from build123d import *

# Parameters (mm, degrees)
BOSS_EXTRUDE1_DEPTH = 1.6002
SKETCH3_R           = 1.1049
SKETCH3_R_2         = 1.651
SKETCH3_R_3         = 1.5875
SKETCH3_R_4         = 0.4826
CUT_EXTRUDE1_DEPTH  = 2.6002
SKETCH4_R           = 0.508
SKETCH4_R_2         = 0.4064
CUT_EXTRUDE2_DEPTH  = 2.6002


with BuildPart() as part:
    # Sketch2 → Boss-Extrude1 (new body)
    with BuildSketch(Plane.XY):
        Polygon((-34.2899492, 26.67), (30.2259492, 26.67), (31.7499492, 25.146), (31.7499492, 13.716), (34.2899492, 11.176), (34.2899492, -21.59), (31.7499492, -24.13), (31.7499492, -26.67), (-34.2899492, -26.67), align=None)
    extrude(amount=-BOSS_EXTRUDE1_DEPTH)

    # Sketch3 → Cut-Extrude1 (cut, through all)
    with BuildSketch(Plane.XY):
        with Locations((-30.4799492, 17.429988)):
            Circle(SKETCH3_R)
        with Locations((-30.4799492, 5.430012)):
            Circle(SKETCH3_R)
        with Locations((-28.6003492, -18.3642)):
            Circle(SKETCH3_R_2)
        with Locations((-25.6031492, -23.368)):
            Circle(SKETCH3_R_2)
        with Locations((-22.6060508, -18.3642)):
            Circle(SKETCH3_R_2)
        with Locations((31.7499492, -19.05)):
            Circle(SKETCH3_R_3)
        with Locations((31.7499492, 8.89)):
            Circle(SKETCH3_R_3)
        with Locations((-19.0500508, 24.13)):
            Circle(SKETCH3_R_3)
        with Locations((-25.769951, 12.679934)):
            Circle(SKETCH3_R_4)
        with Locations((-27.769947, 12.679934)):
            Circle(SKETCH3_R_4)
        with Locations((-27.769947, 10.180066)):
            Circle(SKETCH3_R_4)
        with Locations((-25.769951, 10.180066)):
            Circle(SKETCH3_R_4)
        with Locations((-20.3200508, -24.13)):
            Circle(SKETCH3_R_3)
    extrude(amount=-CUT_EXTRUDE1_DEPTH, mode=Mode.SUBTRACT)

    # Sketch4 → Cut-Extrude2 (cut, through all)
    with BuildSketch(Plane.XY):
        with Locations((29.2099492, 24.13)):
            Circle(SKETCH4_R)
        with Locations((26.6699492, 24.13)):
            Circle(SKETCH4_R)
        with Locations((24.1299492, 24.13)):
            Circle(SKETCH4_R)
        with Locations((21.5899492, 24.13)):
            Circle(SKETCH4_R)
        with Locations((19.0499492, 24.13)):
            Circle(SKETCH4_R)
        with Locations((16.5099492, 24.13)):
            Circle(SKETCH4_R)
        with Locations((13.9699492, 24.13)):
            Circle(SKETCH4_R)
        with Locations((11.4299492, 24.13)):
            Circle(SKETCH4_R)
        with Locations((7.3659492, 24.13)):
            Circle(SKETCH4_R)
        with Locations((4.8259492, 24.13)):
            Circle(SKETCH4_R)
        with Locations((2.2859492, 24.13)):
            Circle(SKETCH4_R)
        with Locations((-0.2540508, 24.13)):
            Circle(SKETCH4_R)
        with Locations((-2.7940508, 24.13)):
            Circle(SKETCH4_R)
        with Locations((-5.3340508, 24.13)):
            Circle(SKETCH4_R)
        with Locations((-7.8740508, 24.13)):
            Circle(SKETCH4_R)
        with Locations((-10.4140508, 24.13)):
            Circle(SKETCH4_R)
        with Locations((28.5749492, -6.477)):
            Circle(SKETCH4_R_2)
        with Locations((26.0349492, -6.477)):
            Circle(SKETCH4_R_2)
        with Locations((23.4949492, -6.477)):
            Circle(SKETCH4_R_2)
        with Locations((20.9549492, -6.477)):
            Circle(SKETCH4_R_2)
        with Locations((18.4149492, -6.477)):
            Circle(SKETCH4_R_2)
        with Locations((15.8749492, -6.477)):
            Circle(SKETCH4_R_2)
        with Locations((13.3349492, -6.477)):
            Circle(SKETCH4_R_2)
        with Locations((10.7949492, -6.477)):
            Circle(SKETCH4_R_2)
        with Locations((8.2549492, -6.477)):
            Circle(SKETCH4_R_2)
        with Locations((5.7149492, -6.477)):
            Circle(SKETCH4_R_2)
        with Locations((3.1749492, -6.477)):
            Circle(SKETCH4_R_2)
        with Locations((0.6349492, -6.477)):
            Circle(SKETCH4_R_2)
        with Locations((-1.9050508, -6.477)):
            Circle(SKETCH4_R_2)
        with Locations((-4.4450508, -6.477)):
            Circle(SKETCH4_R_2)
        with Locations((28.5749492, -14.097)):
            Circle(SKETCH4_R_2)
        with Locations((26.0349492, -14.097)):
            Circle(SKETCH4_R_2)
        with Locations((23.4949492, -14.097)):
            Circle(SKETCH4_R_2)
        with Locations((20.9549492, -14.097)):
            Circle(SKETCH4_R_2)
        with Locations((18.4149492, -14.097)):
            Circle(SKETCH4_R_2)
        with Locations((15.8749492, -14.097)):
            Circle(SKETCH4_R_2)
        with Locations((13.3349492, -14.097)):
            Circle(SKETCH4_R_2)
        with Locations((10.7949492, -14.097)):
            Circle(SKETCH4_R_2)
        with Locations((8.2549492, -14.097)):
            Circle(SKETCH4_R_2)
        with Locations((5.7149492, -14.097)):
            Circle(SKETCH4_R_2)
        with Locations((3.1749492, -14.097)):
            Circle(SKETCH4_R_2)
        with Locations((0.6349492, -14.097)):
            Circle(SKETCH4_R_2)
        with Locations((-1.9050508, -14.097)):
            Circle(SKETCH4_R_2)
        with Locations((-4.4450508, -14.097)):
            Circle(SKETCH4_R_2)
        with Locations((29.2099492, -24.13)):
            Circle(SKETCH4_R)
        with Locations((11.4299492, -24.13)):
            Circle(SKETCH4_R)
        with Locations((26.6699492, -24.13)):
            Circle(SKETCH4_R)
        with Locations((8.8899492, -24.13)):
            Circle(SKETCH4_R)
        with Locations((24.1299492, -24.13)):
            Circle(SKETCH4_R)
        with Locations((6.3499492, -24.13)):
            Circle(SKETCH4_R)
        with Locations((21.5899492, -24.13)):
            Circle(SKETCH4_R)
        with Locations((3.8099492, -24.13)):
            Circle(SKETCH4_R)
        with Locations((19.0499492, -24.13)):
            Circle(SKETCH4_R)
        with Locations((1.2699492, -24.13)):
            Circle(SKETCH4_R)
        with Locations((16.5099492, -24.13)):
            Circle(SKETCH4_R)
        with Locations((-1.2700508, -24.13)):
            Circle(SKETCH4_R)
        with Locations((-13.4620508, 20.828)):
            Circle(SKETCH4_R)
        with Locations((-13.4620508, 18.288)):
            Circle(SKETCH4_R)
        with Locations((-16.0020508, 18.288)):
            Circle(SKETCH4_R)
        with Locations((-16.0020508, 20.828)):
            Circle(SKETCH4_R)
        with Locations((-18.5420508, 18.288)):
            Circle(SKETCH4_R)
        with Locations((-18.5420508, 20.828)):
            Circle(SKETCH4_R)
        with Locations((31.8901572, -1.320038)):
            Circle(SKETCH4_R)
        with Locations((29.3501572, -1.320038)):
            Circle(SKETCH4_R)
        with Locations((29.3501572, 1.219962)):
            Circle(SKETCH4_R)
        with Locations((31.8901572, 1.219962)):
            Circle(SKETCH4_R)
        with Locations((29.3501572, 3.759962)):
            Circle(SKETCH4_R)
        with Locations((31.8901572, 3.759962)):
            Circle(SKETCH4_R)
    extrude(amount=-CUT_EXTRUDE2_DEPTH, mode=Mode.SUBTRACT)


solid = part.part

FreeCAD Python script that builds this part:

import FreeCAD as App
import Part
import Sketcher

V = App.Vector
Q = App.Units.Quantity


def add_polygon(sketch, points):
    """Adds a closed chain of lines whose ends are joined by coincident constraints."""
    first, n = sketch.GeometryCount, len(points)
    for a, b in zip(points, points[1:] + points[:1]):
        sketch.addGeometry(Part.LineSegment(App.Vector(*a, 0), App.Vector(*b, 0)), False)
    for i in range(n):
        sketch.addConstraint(Sketcher.Constraint("Coincident", first + i, 2, first + (i + 1) % n, 1))

doc = App.newDocument("Part")
body = doc.addObject("PartDesign::Body", "Body")

# Sketch on XY plane
sketch1 = body.newObject("Sketcher::SketchObject", "Sketch")
sketch1.AttachmentSupport = (doc.getObject("XY_Plane"), [""])
sketch1.MapMode = "FlatFace"
add_polygon(sketch1, [(30.2, 26.7), (-34.3, 26.7), (-34.3, -26.7), (31.7, -26.7), (31.7, -24.1), (34.3, -21.6), (34.3, 11.2), (31.7, 13.7), (31.7, 25.1)])  # lines 0-8
sketch1.addConstraint(Sketcher.Constraint("Horizontal", 0))
sketch1.addConstraint(Sketcher.Constraint("Vertical", 1))
sketch1.addConstraint(Sketcher.Constraint("Horizontal", 2))
sketch1.addConstraint(Sketcher.Constraint("Vertical", 3))
sketch1.addConstraint(Sketcher.Constraint("Vertical", 5))
sketch1.addConstraint(Sketcher.Constraint("Vertical", 7))
sketch1.addConstraint(Sketcher.Constraint("Perpendicular", 4, 6))
sketch1.addConstraint(Sketcher.Constraint("Parallel", 6, 8))
sketch1.addConstraint(Sketcher.Constraint("Vertical", 3, 2, 6, 2))
sketch1.addConstraint(Sketcher.Constraint("Equal", 4, 6))
sketch1.addConstraint(Sketcher.Constraint("DistanceY", 1, 2, 1, 1, Q("2.1 in")))
sketch1.addConstraint(Sketcher.Constraint("DistanceY", 3, 1, 3, 2, Q("0.1 in")))
sketch1.addConstraint(Sketcher.Constraint("DistanceY", 5, 1, 5, 2, Q("1.29 in")))
sketch1.addConstraint(Sketcher.Constraint("DistanceY", 7, 1, 7, 2, Q("0.45 in")))
sketch1.addConstraint(Sketcher.Constraint("DistanceX", 3, 2, 4, 2, Q("0.1 in")))
sketch1.addConstraint(Sketcher.Constraint("DistanceY", -1, 1, 0, 2, Q("1.05 in")))
sketch1.addConstraint(Sketcher.Constraint("DistanceX", 0, 2, 0, 1, Q("64.515898 mm")))
sketch1.addConstraint(Sketcher.Constraint("DistanceX", 0, 2, -1, 1, Q("34.289949 mm")))
pad1 = body.newObject("PartDesign::Pad", "Pad")
pad1.Profile = sketch1
pad1.Length = Q("0.063 in")
pad1.Reversed = True

# Sketch on XY plane
sketch2 = body.newObject("Sketcher::SketchObject", "Sketch001")
sketch2.AttachmentSupport = (doc.getObject("XY_Plane"), [""])
sketch2.MapMode = "FlatFace"
sketch2.addGeometry(Part.Circle(V(-30.48, 17.43, 0), V(0, 0, 1), 1.1), False)
sketch2.addGeometry(Part.Circle(V(-30.48, 5.43, 0), V(0, 0, 1), 1.1), False)
sketch2.addGeometry(Part.Circle(V(-28.6, -18.36, 0), V(0, 0, 1), 1.65), False)
sketch2.addGeometry(Part.Circle(V(-25.6, -23.37, 0), V(0, 0, 1), 1.65), False)
sketch2.addGeometry(Part.Circle(V(-22.61, -18.36, 0), V(0, 0, 1), 1.65), False)
sketch2.addGeometry(Part.Circle(V(31.75, -19.05, 0), V(0, 0, 1), 1.59), False)
sketch2.addGeometry(Part.Circle(V(31.75, 8.89, 0), V(0, 0, 1), 1.59), False)
sketch2.addGeometry(Part.Circle(V(-19.05, 24.13, 0), V(0, 0, 1), 1.59), False)
sketch2.addGeometry(Part.Circle(V(-25.77, 12.68, 0), V(0, 0, 1), 0.48), False)
sketch2.addGeometry(Part.Circle(V(-27.77, 12.68, 0), V(0, 0, 1), 0.48), False)
sketch2.addGeometry(Part.Circle(V(-27.77, 10.18, 0), V(0, 0, 1), 0.48), False)
sketch2.addGeometry(Part.Circle(V(-25.77, 10.18, 0), V(0, 0, 1), 0.48), False)
sketch2.addGeometry(Part.Circle(V(-20.32, -24.13, 0), V(0, 0, 1), 1.59), False)
sketch2.addConstraint(Sketcher.Constraint("Equal", 0, 1))
sketch2.addConstraint(Sketcher.Constraint("Equal", 2, 3))
sketch2.addConstraint(Sketcher.Constraint("Equal", 3, 4))
sketch2.addConstraint(Sketcher.Constraint("Equal", 5, 6))
sketch2.addConstraint(Sketcher.Constraint("Equal", 6, 7))
sketch2.addConstraint(Sketcher.Constraint("Equal", 8, 9))
sketch2.addConstraint(Sketcher.Constraint("Equal", 9, 10))
sketch2.addConstraint(Sketcher.Constraint("Equal", 10, 11))
sketch2.addConstraint(Sketcher.Constraint("Equal", 7, 12))
sketch2.addConstraint(Sketcher.Constraint("Horizontal", 2, 3, 4, 3))
sketch2.addConstraint(Sketcher.Constraint("Horizontal", 8, 3, 9, 3))
sketch2.addConstraint(Sketcher.Constraint("Horizontal", 10, 3, 11, 3))
sketch2.addConstraint(Sketcher.Constraint("Vertical", 0, 3, 1, 3))
sketch2.addConstraint(Sketcher.Constraint("Vertical", 5, 3, 6, 3))
sketch2.addConstraint(Sketcher.Constraint("Vertical", 9, 3, 10, 3))
sketch2.addConstraint(Sketcher.Constraint("Vertical", 8, 3, 11, 3))
sketch2.addConstraint(Sketcher.Constraint("Diameter", 2, Q("0.13 in")))
sketch2.addConstraint(Sketcher.Constraint("Diameter", 0, Q("0.087 in")))
sketch2.addConstraint(Sketcher.Constraint("Diameter", 5, Q("0.125 in")))
sketch2.addConstraint(Sketcher.Constraint("Diameter", 8, Q("0.038 in")))
sketch2.addConstraint(Sketcher.Constraint("DistanceY", 5, 3, 6, 3, Q("1.1 in")))
sketch2.addConstraint(Sketcher.Constraint("DistanceY", 3, 3, -1, 1, Q("0.92 in")))
sketch2.addConstraint(Sketcher.Constraint("DistanceY", 5, 3, -1, 1, Q("0.75 in")))
sketch2.addConstraint(Sketcher.Constraint("DistanceY", -1, 1, 7, 3, Q("0.95 in")))
sketch2.addConstraint(Sketcher.Constraint("DistanceY", 12, 3, -1, 1, Q("0.95 in")))
sketch2.addConstraint(Sketcher.Constraint("DistanceX", 4, 3, 5, 3, Q("2.14 in")))
sketch2.addConstraint(Sketcher.Constraint("DistanceX", 4, 3, 7, 3, Q("0.14 in")))
sketch2.addConstraint(Sketcher.Constraint("DistanceX", 4, 3, 12, 3, Q("0.09 in")))
sketch2.addConstraint(Sketcher.Constraint("DistanceY", 2, 3, -1, 1, Q("0.723 in")))
sketch2.addConstraint(Sketcher.Constraint("DistanceX", 1, 3, 2, 3, Q("0.074 in")))
sketch2.addConstraint(Sketcher.Constraint("DistanceX", 2, 3, 3, 3, Q("0.118 in")))
sketch2.addConstraint(Sketcher.Constraint("DistanceX", 3, 3, 4, 3, Q("2.997098 mm")))
sketch2.addConstraint(Sketcher.Constraint("DistanceX", 0, 3, 8, 3, Q("4.709998 mm")))
sketch2.addConstraint(Sketcher.Constraint("DistanceX", 0, 3, -1, 1, Q("30.479949 mm")))
sketch2.addConstraint(Sketcher.Constraint("DistanceY", -1, 1, 0, 3, Q("17.429988 mm")))
sketch2.addConstraint(Sketcher.Constraint("DistanceY", -1, 1, 1, 3, Q("5.430012 mm")))
sketch2.addConstraint(Sketcher.Constraint("DistanceY", 1, 3, 8, 3, Q("7.249922 mm")))
sketch2.addConstraint(Sketcher.Constraint("DistanceX", 9, 3, -1, 1, Q("27.769947 mm")))
sketch2.addConstraint(Sketcher.Constraint("DistanceY", -1, 1, 10, 3, Q("10.180066 mm")))
pocket1 = body.newObject("PartDesign::Pocket", "Pocket")
pocket1.Profile = sketch2
pocket1.Type = "ThroughAll"

# Sketch on XY plane
sketch3 = body.newObject("Sketcher::SketchObject", "Sketch002")
sketch3.AttachmentSupport = (doc.getObject("XY_Plane"), [""])
sketch3.MapMode = "FlatFace"
sketch3.addGeometry(Part.Circle(V(29.21, 24.13, 0), V(0, 0, 1), 0.51), False)
sketch3.addGeometry(Part.Circle(V(26.67, 24.13, 0), V(0, 0, 1), 0.51), False)
sketch3.addGeometry(Part.Circle(V(24.13, 24.13, 0), V(0, 0, 1), 0.51), False)
sketch3.addGeometry(Part.Circle(V(21.59, 24.13, 0), V(0, 0, 1), 0.51), False)
sketch3.addGeometry(Part.Circle(V(19.05, 24.13, 0), V(0, 0, 1), 0.51), False)
sketch3.addGeometry(Part.Circle(V(16.51, 24.13, 0), V(0, 0, 1), 0.51), False)
sketch3.addGeometry(Part.Circle(V(13.97, 24.13, 0), V(0, 0, 1), 0.51), False)
sketch3.addGeometry(Part.Circle(V(11.43, 24.13, 0), V(0, 0, 1), 0.51), False)
sketch3.addGeometry(Part.Circle(V(7.37, 24.13, 0), V(0, 0, 1), 0.51), False)
sketch3.addGeometry(Part.Circle(V(4.83, 24.13, 0), V(0, 0, 1), 0.51), False)
sketch3.addGeometry(Part.Circle(V(2.29, 24.13, 0), V(0, 0, 1), 0.51), False)
sketch3.addGeometry(Part.Circle(V(-0.25, 24.13, 0), V(0, 0, 1), 0.51), False)
sketch3.addGeometry(Part.Circle(V(-2.79, 24.13, 0), V(0, 0, 1), 0.51), False)
sketch3.addGeometry(Part.Circle(V(-5.33, 24.13, 0), V(0, 0, 1), 0.51), False)
sketch3.addGeometry(Part.Circle(V(-7.87, 24.13, 0), V(0, 0, 1), 0.51), False)
sketch3.addGeometry(Part.Circle(V(-10.41, 24.13, 0), V(0, 0, 1), 0.51), False)
sketch3.addGeometry(Part.Circle(V(28.57, -6.48, 0), V(0, 0, 1), 0.41), False)
sketch3.addGeometry(Part.Circle(V(26.03, -6.48, 0), V(0, 0, 1), 0.41), False)
sketch3.addGeometry(Part.Circle(V(23.49, -6.48, 0), V(0, 0, 1), 0.41), False)
sketch3.addGeometry(Part.Circle(V(20.95, -6.48, 0), V(0, 0, 1), 0.41), False)
sketch3.addGeometry(Part.Circle(V(18.41, -6.48, 0), V(0, 0, 1), 0.41), False)
sketch3.addGeometry(Part.Circle(V(15.87, -6.48, 0), V(0, 0, 1), 0.41), False)
sketch3.addGeometry(Part.Circle(V(13.33, -6.48, 0), V(0, 0, 1), 0.41), False)
sketch3.addGeometry(Part.Circle(V(10.79, -6.48, 0), V(0, 0, 1), 0.41), False)
sketch3.addGeometry(Part.Circle(V(8.25, -6.48, 0), V(0, 0, 1), 0.41), False)
sketch3.addGeometry(Part.Circle(V(5.71, -6.48, 0), V(0, 0, 1), 0.41), False)
sketch3.addGeometry(Part.Circle(V(3.17, -6.48, 0), V(0, 0, 1), 0.41), False)
sketch3.addGeometry(Part.Circle(V(0.63, -6.48, 0), V(0, 0, 1), 0.41), False)
sketch3.addGeometry(Part.Circle(V(-1.91, -6.48, 0), V(0, 0, 1), 0.41), False)
sketch3.addGeometry(Part.Circle(V(-4.45, -6.48, 0), V(0, 0, 1), 0.41), False)
sketch3.addGeometry(Part.Circle(V(28.57, -14.1, 0), V(0, 0, 1), 0.41), False)
sketch3.addGeometry(Part.Circle(V(26.03, -14.1, 0), V(0, 0, 1), 0.41), False)
sketch3.addGeometry(Part.Circle(V(23.49, -14.1, 0), V(0, 0, 1), 0.41), False)
sketch3.addGeometry(Part.Circle(V(20.95, -14.1, 0), V(0, 0, 1), 0.41), False)
sketch3.addGeometry(Part.Circle(V(18.41, -14.1, 0), V(0, 0, 1), 0.41), False)
sketch3.addGeometry(Part.Circle(V(15.87, -14.1, 0), V(0, 0, 1), 0.41), False)
sketch3.addGeometry(Part.Circle(V(13.33, -14.1, 0), V(0, 0, 1), 0.41), False)
sketch3.addGeometry(Part.Circle(V(10.79, -14.1, 0), V(0, 0, 1), 0.41), False)
sketch3.addGeometry(Part.Circle(V(8.25, -14.1, 0), V(0, 0, 1), 0.41), False)
sketch3.addGeometry(Part.Circle(V(5.71, -14.1, 0), V(0, 0, 1), 0.41), False)
sketch3.addGeometry(Part.Circle(V(3.17, -14.1, 0), V(0, 0, 1), 0.41), False)
sketch3.addGeometry(Part.Circle(V(0.63, -14.1, 0), V(0, 0, 1), 0.41), False)
sketch3.addGeometry(Part.Circle(V(-1.91, -14.1, 0), V(0, 0, 1), 0.41), False)
sketch3.addGeometry(Part.Circle(V(-4.45, -14.1, 0), V(0, 0, 1), 0.41), False)
sketch3.addGeometry(Part.Circle(V(29.21, -24.13, 0), V(0, 0, 1), 0.51), False)
sketch3.addGeometry(Part.Circle(V(11.43, -24.13, 0), V(0, 0, 1), 0.51), False)
sketch3.addGeometry(Part.Circle(V(26.67, -24.13, 0), V(0, 0, 1), 0.51), False)
sketch3.addGeometry(Part.Circle(V(8.89, -24.13, 0), V(0, 0, 1), 0.51), False)
sketch3.addGeometry(Part.Circle(V(24.13, -24.13, 0), V(0, 0, 1), 0.51), False)
sketch3.addGeometry(Part.Circle(V(6.35, -24.13, 0), V(0, 0, 1), 0.51), False)
sketch3.addGeometry(Part.Circle(V(21.59, -24.13, 0), V(0, 0, 1), 0.51), False)
sketch3.addGeometry(Part.Circle(V(3.81, -24.13, 0), V(0, 0, 1), 0.51), False)
sketch3.addGeometry(Part.Circle(V(19.05, -24.13, 0), V(0, 0, 1), 0.51), False)
sketch3.addGeometry(Part.Circle(V(1.27, -24.13, 0), V(0, 0, 1), 0.51), False)
sketch3.addGeometry(Part.Circle(V(16.51, -24.13, 0), V(0, 0, 1), 0.51), False)
sketch3.addGeometry(Part.Circle(V(-1.27, -24.13, 0), V(0, 0, 1), 0.51), False)
sketch3.addGeometry(Part.Circle(V(-13.46, 20.83, 0), V(0, 0, 1), 0.51), False)
sketch3.addGeometry(Part.Circle(V(-13.46, 18.29, 0), V(0, 0, 1), 0.51), False)
sketch3.addGeometry(Part.Circle(V(-16, 18.29, 0), V(0, 0, 1), 0.51), False)
sketch3.addGeometry(Part.Circle(V(-16, 20.83, 0), V(0, 0, 1), 0.51), False)
sketch3.addGeometry(Part.Circle(V(-18.54, 18.29, 0), V(0, 0, 1), 0.51), False)
sketch3.addGeometry(Part.Circle(V(-18.54, 20.83, 0), V(0, 0, 1), 0.51), False)
sketch3.addGeometry(Part.Circle(V(31.89, -1.32, 0), V(0, 0, 1), 0.51), False)
sketch3.addGeometry(Part.Circle(V(29.35, -1.32, 0), V(0, 0, 1), 0.51), False)
sketch3.addGeometry(Part.Circle(V(29.35, 1.22, 0), V(0, 0, 1), 0.51), False)
sketch3.addGeometry(Part.Circle(V(31.89, 1.22, 0), V(0, 0, 1), 0.51), False)
sketch3.addGeometry(Part.Circle(V(29.35, 3.76, 0), V(0, 0, 1), 0.51), False)
sketch3.addGeometry(Part.Circle(V(31.89, 3.76, 0), V(0, 0, 1), 0.51), False)
sketch3.addConstraint(Sketcher.Constraint("Equal", 0, 1))
sketch3.addConstraint(Sketcher.Constraint("Equal", 1, 2))
sketch3.addConstraint(Sketcher.Constraint("Equal", 2, 3))
sketch3.addConstraint(Sketcher.Constraint("Equal", 3, 4))
sketch3.addConstraint(Sketcher.Constraint("Equal", 4, 5))
sketch3.addConstraint(Sketcher.Constraint("Equal", 5, 6))
sketch3.addConstraint(Sketcher.Constraint("Equal", 6, 7))
sketch3.addConstraint(Sketcher.Constraint("Equal", 7, 8))
sketch3.addConstraint(Sketcher.Constraint("Equal", 8, 9))
sketch3.addConstraint(Sketcher.Constraint("Equal", 9, 10))
sketch3.addConstraint(Sketcher.Constraint("Equal", 10, 11))
sketch3.addConstraint(Sketcher.Constraint("Equal", 11, 12))
sketch3.addConstraint(Sketcher.Constraint("Equal", 12, 13))
sketch3.addConstraint(Sketcher.Constraint("Equal", 13, 14))
sketch3.addConstraint(Sketcher.Constraint("Equal", 14, 15))
sketch3.addConstraint(Sketcher.Constraint("Equal", 16, 17))
sketch3.addConstraint(Sketcher.Constraint("Equal", 17, 18))
sketch3.addConstraint(Sketcher.Constraint("Equal", 18, 19))
sketch3.addConstraint(Sketcher.Constraint("Equal", 19, 20))
sketch3.addConstraint(Sketcher.Constraint("Equal", 20, 21))
sketch3.addConstraint(Sketcher.Constraint("Equal", 21, 22))
sketch3.addConstraint(Sketcher.Constraint("Equal", 22, 23))
sketch3.addConstraint(Sketcher.Constraint("Equal", 23, 24))
sketch3.addConstraint(Sketcher.Constraint("Equal", 24, 25))
sketch3.addConstraint(Sketcher.Constraint("Equal", 25, 26))
sketch3.addConstraint(Sketcher.Constraint("Equal", 26, 27))
sketch3.addConstraint(Sketcher.Constraint("Equal", 27, 28))
sketch3.addConstraint(Sketcher.Constraint("Equal", 28, 29))
sketch3.addConstraint(Sketcher.Constraint("Equal", 29, 30))
sketch3.addConstraint(Sketcher.Constraint("Equal", 30, 31))
sketch3.addConstraint(Sketcher.Constraint("Equal", 31, 32))
sketch3.addConstraint(Sketcher.Constraint("Equal", 32, 33))
sketch3.addConstraint(Sketcher.Constraint("Equal", 33, 34))
sketch3.addConstraint(Sketcher.Constraint("Equal", 34, 35))
sketch3.addConstraint(Sketcher.Constraint("Equal", 35, 36))
sketch3.addConstraint(Sketcher.Constraint("Equal", 36, 37))
sketch3.addConstraint(Sketcher.Constraint("Equal", 37, 38))
sketch3.addConstraint(Sketcher.Constraint("Equal", 38, 39))
sketch3.addConstraint(Sketcher.Constraint("Equal", 39, 40))
sketch3.addConstraint(Sketcher.Constraint("Equal", 40, 41))
sketch3.addConstraint(Sketcher.Constraint("Equal", 41, 42))
sketch3.addConstraint(Sketcher.Constraint("Equal", 42, 43))
sketch3.addConstraint(Sketcher.Constraint("Equal", 15, 44))
sketch3.addConstraint(Sketcher.Constraint("Equal", 44, 45))
sketch3.addConstraint(Sketcher.Constraint("Equal", 45, 46))
sketch3.addConstraint(Sketcher.Constraint("Equal", 46, 47))
sketch3.addConstraint(Sketcher.Constraint("Equal", 47, 48))
sketch3.addConstraint(Sketcher.Constraint("Equal", 48, 49))
sketch3.addConstraint(Sketcher.Constraint("Equal", 49, 50))
sketch3.addConstraint(Sketcher.Constraint("Equal", 50, 51))
sketch3.addConstraint(Sketcher.Constraint("Equal", 51, 52))
sketch3.addConstraint(Sketcher.Constraint("Equal", 52, 53))
sketch3.addConstraint(Sketcher.Constraint("Equal", 53, 54))
sketch3.addConstraint(Sketcher.Constraint("Equal", 54, 55))
sketch3.addConstraint(Sketcher.Constraint("Equal", 55, 56))
sketch3.addConstraint(Sketcher.Constraint("Equal", 56, 57))
sketch3.addConstraint(Sketcher.Constraint("Equal", 57, 58))
sketch3.addConstraint(Sketcher.Constraint("Equal", 58, 59))
sketch3.addConstraint(Sketcher.Constraint("Equal", 59, 60))
sketch3.addConstraint(Sketcher.Constraint("Equal", 60, 61))
sketch3.addConstraint(Sketcher.Constraint("Equal", 61, 62))
sketch3.addConstraint(Sketcher.Constraint("Equal", 62, 63))
sketch3.addConstraint(Sketcher.Constraint("Equal", 63, 64))
sketch3.addConstraint(Sketcher.Constraint("Equal", 64, 65))
sketch3.addConstraint(Sketcher.Constraint("Equal", 65, 66))
sketch3.addConstraint(Sketcher.Constraint("Equal", 66, 67))
sketch3.addConstraint(Sketcher.Constraint("Symmetric", 0, 3, 44, 3, -1))
sketch3.addConstraint(Sketcher.Constraint("Symmetric", 7, 3, 45, 3, -1))
sketch3.addConstraint(Sketcher.Constraint("Symmetric", 1, 3, 46, 3, -1))
sketch3.addConstraint(Sketcher.Constraint("Symmetric", 2, 3, 48, 3, -1))
sketch3.addConstraint(Sketcher.Constraint("Symmetric", 3, 3, 50, 3, -1))
sketch3.addConstraint(Sketcher.Constraint("Symmetric", 4, 3, 52, 3, -1))
sketch3.addConstraint(Sketcher.Constraint("Symmetric", 5, 3, 54, 3, -1))
sketch3.addConstraint(Sketcher.Constraint("Horizontal", 0, 3, 1, 3))
sketch3.addConstraint(Sketcher.Constraint("Horizontal", 1, 3, 2, 3))
sketch3.addConstraint(Sketcher.Constraint("Horizontal", 2, 3, 3, 3))
sketch3.addConstraint(Sketcher.Constraint("Horizontal", 3, 3, 4, 3))
sketch3.addConstraint(Sketcher.Constraint("Horizontal", 4, 3, 5, 3))
sketch3.addConstraint(Sketcher.Constraint("Horizontal", 5, 3, 6, 3))
sketch3.addConstraint(Sketcher.Constraint("Horizontal", 6, 3, 7, 3))
sketch3.addConstraint(Sketcher.Constraint("Horizontal", 7, 3, 8, 3))
sketch3.addConstraint(Sketcher.Constraint("Horizontal", 8, 3, 9, 3))
sketch3.addConstraint(Sketcher.Constraint("Horizontal", 9, 3, 10, 3))
sketch3.addConstraint(Sketcher.Constraint("Horizontal", 10, 3, 11, 3))
sketch3.addConstraint(Sketcher.Constraint("Horizontal", 11, 3, 12, 3))
sketch3.addConstraint(Sketcher.Constraint("Horizontal", 12, 3, 13, 3))
sketch3.addConstraint(Sketcher.Constraint("Horizontal", 13, 3, 14, 3))
sketch3.addConstraint(Sketcher.Constraint("Horizontal", 14, 3, 15, 3))
sketch3.addConstraint(Sketcher.Constraint("Horizontal", 16, 3, 17, 3))
sketch3.addConstraint(Sketcher.Constraint("Horizontal", 17, 3, 18, 3))
sketch3.addConstraint(Sketcher.Constraint("Horizontal", 18, 3, 19, 3))
sketch3.addConstraint(Sketcher.Constraint("Horizontal", 19, 3, 20, 3))
sketch3.addConstraint(Sketcher.Constraint("Horizontal", 20, 3, 21, 3))
sketch3.addConstraint(Sketcher.Constraint("Horizontal", 21, 3, 22, 3))
sketch3.addConstraint(Sketcher.Constraint("Horizontal", 22, 3, 23, 3))
sketch3.addConstraint(Sketcher.Constraint("Horizontal", 23, 3, 24, 3))
sketch3.addConstraint(Sketcher.Constraint("Horizontal", 24, 3, 25, 3))
sketch3.addConstraint(Sketcher.Constraint("Horizontal", 25, 3, 26, 3))
sketch3.addConstraint(Sketcher.Constraint("Horizontal", 26, 3, 27, 3))
sketch3.addConstraint(Sketcher.Constraint("Horizontal", 27, 3, 28, 3))
sketch3.addConstraint(Sketcher.Constraint("Horizontal", 28, 3, 29, 3))
sketch3.addConstraint(Sketcher.Constraint("Horizontal", 30, 3, 31, 3))
sketch3.addConstraint(Sketcher.Constraint("Horizontal", 31, 3, 32, 3))
sketch3.addConstraint(Sketcher.Constraint("Horizontal", 32, 3, 33, 3))
sketch3.addConstraint(Sketcher.Constraint("Horizontal", 33, 3, 34, 3))
sketch3.addConstraint(Sketcher.Constraint("Horizontal", 34, 3, 35, 3))
sketch3.addConstraint(Sketcher.Constraint("Horizontal", 35, 3, 36, 3))
sketch3.addConstraint(Sketcher.Constraint("Horizontal", 36, 3, 37, 3))
sketch3.addConstraint(Sketcher.Constraint("Horizontal", 37, 3, 38, 3))
sketch3.addConstraint(Sketcher.Constraint("Horizontal", 38, 3, 39, 3))
sketch3.addConstraint(Sketcher.Constraint("Horizontal", 39, 3, 40, 3))
sketch3.addConstraint(Sketcher.Constraint("Horizontal", 40, 3, 41, 3))
sketch3.addConstraint(Sketcher.Constraint("Horizontal", 41, 3, 42, 3))
sketch3.addConstraint(Sketcher.Constraint("Horizontal", 42, 3, 43, 3))
sketch3.addConstraint(Sketcher.Constraint("Horizontal", 46, 3, 47, 3))
sketch3.addConstraint(Sketcher.Constraint("Horizontal", 48, 3, 49, 3))
sketch3.addConstraint(Sketcher.Constraint("Horizontal", 50, 3, 51, 3))
sketch3.addConstraint(Sketcher.Constraint("Horizontal", 52, 3, 53, 3))
sketch3.addConstraint(Sketcher.Constraint("Horizontal", 54, 3, 55, 3))
sketch3.addConstraint(Sketcher.Constraint("Horizontal", 57, 3, 58, 3))
sketch3.addConstraint(Sketcher.Constraint("Horizontal", 56, 3, 59, 3))
sketch3.addConstraint(Sketcher.Constraint("Horizontal", 58, 3, 60, 3))
sketch3.addConstraint(Sketcher.Constraint("Horizontal", 59, 3, 61, 3))
sketch3.addConstraint(Sketcher.Constraint("Horizontal", 62, 3, 63, 3))
sketch3.addConstraint(Sketcher.Constraint("Horizontal", 64, 3, 65, 3))
sketch3.addConstraint(Sketcher.Constraint("Horizontal", 66, 3, 67, 3))
sketch3.addConstraint(Sketcher.Constraint("Vertical", 16, 3, 30, 3))
sketch3.addConstraint(Sketcher.Constraint("Vertical", 17, 3, 31, 3))
sketch3.addConstraint(Sketcher.Constraint("Vertical", 18, 3, 32, 3))
sketch3.addConstraint(Sketcher.Constraint("Vertical", 19, 3, 33, 3))
sketch3.addConstraint(Sketcher.Constraint("Vertical", 20, 3, 34, 3))
sketch3.addConstraint(Sketcher.Constraint("Vertical", 21, 3, 35, 3))
sketch3.addConstraint(Sketcher.Constraint("Vertical", 22, 3, 36, 3))
sketch3.addConstraint(Sketcher.Constraint("Vertical", 23, 3, 37, 3))
sketch3.addConstraint(Sketcher.Constraint("Vertical", 24, 3, 38, 3))
sketch3.addConstraint(Sketcher.Constraint("Vertical", 25, 3, 39, 3))
sketch3.addConstraint(Sketcher.Constraint("Vertical", 26, 3, 40, 3))
sketch3.addConstraint(Sketcher.Constraint("Vertical", 27, 3, 41, 3))
sketch3.addConstraint(Sketcher.Constraint("Vertical", 28, 3, 42, 3))
sketch3.addConstraint(Sketcher.Constraint("Vertical", 29, 3, 43, 3))
sketch3.addConstraint(Sketcher.Constraint("Vertical", 56, 3, 57, 3))
sketch3.addConstraint(Sketcher.Constraint("Vertical", 58, 3, 59, 3))
sketch3.addConstraint(Sketcher.Constraint("Vertical", 60, 3, 61, 3))
sketch3.addConstraint(Sketcher.Constraint("Vertical", 63, 3, 64, 3))
sketch3.addConstraint(Sketcher.Constraint("Vertical", 62, 3, 65, 3))
sketch3.addConstraint(Sketcher.Constraint("Vertical", 64, 3, 66, 3))
sketch3.addConstraint(Sketcher.Constraint("Vertical", 65, 3, 67, 3))
sketch3.addConstraint(Sketcher.Constraint("Diameter", 0, Q("0.04 in")))
sketch3.addConstraint(Sketcher.Constraint("Diameter", 16, Q("0.032 in")))
sketch3.addConstraint(Sketcher.Constraint("DistanceY", -1, 1, 0, 3, Q("0.95 in")))
sketch3.addConstraint(Sketcher.Constraint("DistanceY", -1, 1, 56, 3, Q("0.82 in")))
sketch3.addConstraint(Sketcher.Constraint("DistanceY", -1, 1, 57, 3, Q("0.72 in")))
sketch3.addConstraint(Sketcher.Constraint("DistanceY", 16, 3, -1, 1, Q("0.255 in")))
sketch3.addConstraint(Sketcher.Constraint("DistanceY", 30, 3, -1, 1, Q("0.555 in")))
sketch3.addConstraint(Sketcher.Constraint("DistanceX", -1, 1, 0, 3, Q("29.209949 mm")))
sketch3.addConstraint(Sketcher.Constraint("DistanceX", -1, 1, 1, 3, Q("26.669949 mm")))
sketch3.addConstraint(Sketcher.Constraint("DistanceX", -1, 1, 2, 3, Q("24.129949 mm")))
sketch3.addConstraint(Sketcher.Constraint("DistanceX", -1, 1, 3, 3, Q("21.589949 mm")))
sketch3.addConstraint(Sketcher.Constraint("DistanceX", -1, 1, 4, 3, Q("19.049949 mm")))
sketch3.addConstraint(Sketcher.Constraint("DistanceX", -1, 1, 5, 3, Q("16.509949 mm")))
sketch3.addConstraint(Sketcher.Constraint("DistanceX", -1, 1, 6, 3, Q("13.969949 mm")))
sketch3.addConstraint(Sketcher.Constraint("DistanceX", -1, 1, 7, 3, Q("11.429949 mm")))
sketch3.addConstraint(Sketcher.Constraint("DistanceX", -1, 1, 8, 3, Q("7.365949 mm")))
sketch3.addConstraint(Sketcher.Constraint("DistanceX", -1, 1, 9, 3, Q("4.825949 mm")))
sketch3.addConstraint(Sketcher.Constraint("DistanceX", -1, 1, 10, 3, Q("2.285949 mm")))
sketch3.addConstraint(Sketcher.Constraint("DistanceX", 11, 3, -1, 1, Q("0.254051 mm")))
sketch3.addConstraint(Sketcher.Constraint("DistanceX", 12, 3, -1, 1, Q("2.794051 mm")))
sketch3.addConstraint(Sketcher.Constraint("DistanceX", 13, 3, -1, 1, Q("5.334051 mm")))
sketch3.addConstraint(Sketcher.Constraint("DistanceX", 14, 3, -1, 1, Q("7.874051 mm")))
sketch3.addConstraint(Sketcher.Constraint("DistanceX", 15, 3, -1, 1, Q("10.414051 mm")))
sketch3.addConstraint(Sketcher.Constraint("DistanceX", -1, 1, 16, 3, Q("28.574949 mm")))
sketch3.addConstraint(Sketcher.Constraint("DistanceX", -1, 1, 17, 3, Q("26.034949 mm")))
sketch3.addConstraint(Sketcher.Constraint("DistanceX", -1, 1, 18, 3, Q("23.494949 mm")))
sketch3.addConstraint(Sketcher.Constraint("DistanceX", -1, 1, 19, 3, Q("20.954949 mm")))
sketch3.addConstraint(Sketcher.Constraint("DistanceX", -1, 1, 20, 3, Q("18.414949 mm")))
sketch3.addConstraint(Sketcher.Constraint("DistanceX", -1, 1, 21, 3, Q("15.874949 mm")))
sketch3.addConstraint(Sketcher.Constraint("DistanceX", -1, 1, 22, 3, Q("13.334949 mm")))
sketch3.addConstraint(Sketcher.Constraint("DistanceX", -1, 1, 23, 3, Q("10.794949 mm")))
sketch3.addConstraint(Sketcher.Constraint("DistanceX", -1, 1, 24, 3, Q("8.254949 mm")))
sketch3.addConstraint(Sketcher.Constraint("DistanceX", -1, 1, 25, 3, Q("5.714949 mm")))
sketch3.addConstraint(Sketcher.Constraint("DistanceX", -1, 1, 26, 3, Q("3.174949 mm")))
sketch3.addConstraint(Sketcher.Constraint("DistanceX", -1, 1, 27, 3, Q("0.634949 mm")))
sketch3.addConstraint(Sketcher.Constraint("DistanceX", 28, 3, -1, 1, Q("1.905051 mm")))
sketch3.addConstraint(Sketcher.Constraint("DistanceX", 29, 3, -1, 1, Q("4.445051 mm")))
sketch3.addConstraint(Sketcher.Constraint("DistanceX", -1, 1, 47, 3, Q("8.889949 mm")))
sketch3.addConstraint(Sketcher.Constraint("DistanceX", -1, 1, 49, 3, Q("6.349949 mm")))
sketch3.addConstraint(Sketcher.Constraint("DistanceX", -1, 1, 51, 3, Q("3.809949 mm")))
sketch3.addConstraint(Sketcher.Constraint("DistanceX", -1, 1, 53, 3, Q("1.269949 mm")))
sketch3.addConstraint(Sketcher.Constraint("DistanceX", 55, 3, -1, 1, Q("1.270051 mm")))
sketch3.addConstraint(Sketcher.Constraint("DistanceX", 56, 3, -1, 1, Q("13.462051 mm")))
sketch3.addConstraint(Sketcher.Constraint("DistanceX", 58, 3, -1, 1, Q("16.002051 mm")))
sketch3.addConstraint(Sketcher.Constraint("DistanceX", 60, 3, -1, 1, Q("18.542051 mm")))
sketch3.addConstraint(Sketcher.Constraint("DistanceY", -1, 1, 66, 3, Q("3.759962 mm")))
sketch3.addConstraint(Sketcher.Constraint("DistanceX", -1, 1, 62, 3, Q("31.890157 mm")))
sketch3.addConstraint(Sketcher.Constraint("DistanceY", 62, 3, -1, 1, Q("1.320038 mm")))
sketch3.addConstraint(Sketcher.Constraint("DistanceX", -1, 1, 63, 3, Q("29.350157 mm")))
sketch3.addConstraint(Sketcher.Constraint("DistanceY", -1, 1, 64, 3, Q("1.219962 mm")))
pocket2 = body.newObject("PartDesign::Pocket", "Pocket001")
pocket2.Profile = sketch3
pocket2.Type = "ThroughAll"

doc.recompute()
